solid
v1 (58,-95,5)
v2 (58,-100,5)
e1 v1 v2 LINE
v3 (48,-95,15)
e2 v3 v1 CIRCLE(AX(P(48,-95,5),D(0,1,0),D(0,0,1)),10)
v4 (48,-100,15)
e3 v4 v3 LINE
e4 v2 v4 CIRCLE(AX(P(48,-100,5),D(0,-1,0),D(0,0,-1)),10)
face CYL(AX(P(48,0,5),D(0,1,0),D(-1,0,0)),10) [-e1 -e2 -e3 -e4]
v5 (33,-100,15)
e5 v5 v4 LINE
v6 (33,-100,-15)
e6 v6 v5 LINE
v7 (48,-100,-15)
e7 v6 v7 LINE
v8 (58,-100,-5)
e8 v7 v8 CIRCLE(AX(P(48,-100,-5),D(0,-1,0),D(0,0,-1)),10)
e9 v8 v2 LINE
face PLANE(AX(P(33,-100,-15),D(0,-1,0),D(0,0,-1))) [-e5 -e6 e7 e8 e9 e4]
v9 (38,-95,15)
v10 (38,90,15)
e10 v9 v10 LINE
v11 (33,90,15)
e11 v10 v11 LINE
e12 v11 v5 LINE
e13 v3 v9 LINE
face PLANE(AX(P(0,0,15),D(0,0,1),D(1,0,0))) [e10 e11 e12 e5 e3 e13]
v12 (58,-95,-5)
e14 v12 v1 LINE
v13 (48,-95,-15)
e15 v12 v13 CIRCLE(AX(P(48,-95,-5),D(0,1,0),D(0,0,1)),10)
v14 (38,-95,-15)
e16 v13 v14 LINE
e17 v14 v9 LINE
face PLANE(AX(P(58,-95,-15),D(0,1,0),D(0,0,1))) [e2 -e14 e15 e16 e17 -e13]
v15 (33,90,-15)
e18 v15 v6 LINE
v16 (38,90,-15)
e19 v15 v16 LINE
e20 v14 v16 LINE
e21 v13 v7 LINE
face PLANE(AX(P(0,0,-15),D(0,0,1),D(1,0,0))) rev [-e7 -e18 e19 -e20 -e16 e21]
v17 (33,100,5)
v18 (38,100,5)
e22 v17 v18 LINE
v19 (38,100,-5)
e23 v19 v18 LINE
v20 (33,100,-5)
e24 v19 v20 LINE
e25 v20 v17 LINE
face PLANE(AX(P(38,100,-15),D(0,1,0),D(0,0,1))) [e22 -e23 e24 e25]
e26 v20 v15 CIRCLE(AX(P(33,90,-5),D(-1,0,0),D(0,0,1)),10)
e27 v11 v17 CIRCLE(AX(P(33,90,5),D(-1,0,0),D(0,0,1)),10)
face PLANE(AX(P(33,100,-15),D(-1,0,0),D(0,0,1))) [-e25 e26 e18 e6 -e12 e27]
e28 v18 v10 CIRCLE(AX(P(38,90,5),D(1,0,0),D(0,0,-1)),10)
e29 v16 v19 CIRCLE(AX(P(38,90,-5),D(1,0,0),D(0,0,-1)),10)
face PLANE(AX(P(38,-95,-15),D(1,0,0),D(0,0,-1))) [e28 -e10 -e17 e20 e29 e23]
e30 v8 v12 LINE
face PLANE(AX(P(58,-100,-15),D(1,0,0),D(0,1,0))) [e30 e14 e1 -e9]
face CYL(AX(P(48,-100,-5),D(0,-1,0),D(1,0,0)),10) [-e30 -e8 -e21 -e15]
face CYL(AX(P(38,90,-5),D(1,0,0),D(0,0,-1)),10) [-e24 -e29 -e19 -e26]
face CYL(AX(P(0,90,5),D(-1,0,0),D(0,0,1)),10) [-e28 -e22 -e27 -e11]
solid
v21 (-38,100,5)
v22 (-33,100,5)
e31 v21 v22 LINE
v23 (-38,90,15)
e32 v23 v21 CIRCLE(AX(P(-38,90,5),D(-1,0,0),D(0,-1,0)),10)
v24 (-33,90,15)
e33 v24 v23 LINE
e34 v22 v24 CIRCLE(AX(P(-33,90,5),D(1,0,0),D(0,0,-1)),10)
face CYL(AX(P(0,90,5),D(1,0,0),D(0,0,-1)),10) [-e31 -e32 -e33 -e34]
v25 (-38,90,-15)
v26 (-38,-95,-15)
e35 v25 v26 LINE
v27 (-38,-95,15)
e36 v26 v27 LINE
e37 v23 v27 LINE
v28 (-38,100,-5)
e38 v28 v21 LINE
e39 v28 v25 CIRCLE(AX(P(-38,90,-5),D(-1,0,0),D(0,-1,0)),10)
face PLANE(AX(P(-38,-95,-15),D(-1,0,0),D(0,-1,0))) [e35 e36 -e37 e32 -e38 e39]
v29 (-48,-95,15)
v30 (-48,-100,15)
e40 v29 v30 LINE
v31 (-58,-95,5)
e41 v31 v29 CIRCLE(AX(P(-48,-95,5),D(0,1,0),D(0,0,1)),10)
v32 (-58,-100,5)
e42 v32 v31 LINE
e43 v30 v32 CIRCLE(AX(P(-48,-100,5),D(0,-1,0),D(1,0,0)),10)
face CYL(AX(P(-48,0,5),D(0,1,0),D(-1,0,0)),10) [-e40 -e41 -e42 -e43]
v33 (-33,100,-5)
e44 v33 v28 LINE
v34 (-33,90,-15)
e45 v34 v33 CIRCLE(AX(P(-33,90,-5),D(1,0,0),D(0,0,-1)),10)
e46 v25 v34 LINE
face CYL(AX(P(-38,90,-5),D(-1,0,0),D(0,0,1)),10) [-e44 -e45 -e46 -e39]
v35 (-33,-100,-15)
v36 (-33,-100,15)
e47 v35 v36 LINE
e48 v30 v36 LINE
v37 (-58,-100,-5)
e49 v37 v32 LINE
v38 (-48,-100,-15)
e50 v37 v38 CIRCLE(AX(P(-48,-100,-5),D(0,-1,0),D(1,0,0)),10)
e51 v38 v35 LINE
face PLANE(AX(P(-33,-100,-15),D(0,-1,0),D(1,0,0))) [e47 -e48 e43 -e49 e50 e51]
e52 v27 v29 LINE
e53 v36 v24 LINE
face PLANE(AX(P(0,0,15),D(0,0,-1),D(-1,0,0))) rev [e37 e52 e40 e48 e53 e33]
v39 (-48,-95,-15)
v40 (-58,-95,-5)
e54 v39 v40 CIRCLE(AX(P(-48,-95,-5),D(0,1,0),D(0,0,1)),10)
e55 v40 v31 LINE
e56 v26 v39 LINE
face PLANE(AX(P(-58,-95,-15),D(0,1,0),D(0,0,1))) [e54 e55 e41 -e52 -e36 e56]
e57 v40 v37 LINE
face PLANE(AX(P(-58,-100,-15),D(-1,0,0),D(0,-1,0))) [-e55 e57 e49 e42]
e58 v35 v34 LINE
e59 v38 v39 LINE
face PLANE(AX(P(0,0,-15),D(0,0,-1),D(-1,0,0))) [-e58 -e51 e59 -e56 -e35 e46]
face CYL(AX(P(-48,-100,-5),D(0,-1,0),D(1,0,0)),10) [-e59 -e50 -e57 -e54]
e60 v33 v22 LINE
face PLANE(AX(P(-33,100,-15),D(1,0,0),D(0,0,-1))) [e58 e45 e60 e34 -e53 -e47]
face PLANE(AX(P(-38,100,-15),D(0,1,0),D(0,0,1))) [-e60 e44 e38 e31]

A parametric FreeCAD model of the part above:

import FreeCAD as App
import Part
import Sketcher

V = App.Vector


def edges_at(feature, points):
    """Names of the edges that pass closest to the given points."""
    edges = feature.Shape.Edges
    near = lambda p: min(range(len(edges)), key=lambda i: edges[i].distToShape(Part.Vertex(*p))[0])
    return sorted({f"Edge{near(p) + 1}" for p in points})


def add_polygon(sketch, points):
    """Adds a closed chain of lines whose ends are joined by coincident constraints."""
    first, n = sketch.GeometryCount, len(points)
    for a, b in zip(points, points[1:] + points[:1]):
        sketch.addGeometry(Part.LineSegment(App.Vector(*a, 0), App.Vector(*b, 0)), False)
    for i in range(n):
        sketch.addConstraint(Sketcher.Constraint("Coincident", first + i, 2, first + (i + 1) % n, 1))

doc = App.newDocument("Part")
params = doc.addObject("Spreadsheet::Sheet", "Params")
for row, (alias, value) in enumerate([
    ("sketch1_width", "25 mm"),
    ("sketch1_width2", "20 mm"),
    ("sketch1_height", "200 mm"),
    ("pad1_length", "15 mm"),
    ("pad1_length2", "15 mm"),
    ("fillet_radius", "10 mm"),
    ("sketch2_width", "5 mm"),
    ("sketch2_width2", "20 mm"),
    ("sketch2_height", "195 mm"),
    ("pad2_length", "15 mm"),
    ("pad2_length2", "15 mm"),
    ("fillet2_radius", "10 mm"),
], start=1):
    params.set(f"A{row}", alias)
    params.set(f"B{row}", "=" + value)
    params.setAlias(f"B{row}", alias)

body = doc.addObject("PartDesign::Body", "Body")

# Sketch on XY plane
sketch1 = body.newObject("Sketcher::SketchObject", "Sketch")
sketch1.AttachmentSupport = (doc.getObject("XY_Plane"), [""])
sketch1.MapMode = "FlatFace"
add_polygon(sketch1, [(33, 100), (33, -100), (58, -100), (58, -95), (38, -95), (38, 100)])  # lines 0-5
sketch1.addConstraint([
    Sketcher.Constraint("Vertical", 0),
    Sketcher.Constraint("Horizontal", 1),
    Sketcher.Constraint("Vertical", 2),
    Sketcher.Constraint("Horizontal", 3),
    Sketcher.Constraint("Vertical", 4),
    Sketcher.Constraint("Horizontal", 5),
    Sketcher.Constraint("Equal", 5, 2),
    Sketcher.Constraint("DistanceX", 1, 1, 1, 2, 25.0),
    Sketcher.Constraint("DistanceX", 3, 2, 3, 1, 20.0),
    Sketcher.Constraint("DistanceY", 0, 2, 0, 1, 200.0),
    Sketcher.Constraint("DistanceX", -1, 1, 0, 2, 33.0),
    Sketcher.Constraint("DistanceY", 0, 2, -1, 1, 100.0),
])
sketch1.setExpression("Constraints[13]", "Params.sketch1_width")
sketch1.setExpression("Constraints[14]", "Params.sketch1_width2")
sketch1.setExpression("Constraints[15]", "Params.sketch1_height")
pad1 = body.newObject("PartDesign::Pad", "Pad")
pad1.Profile = sketch1
pad1.Type = "TwoLengths"
pad1.setExpression("Length", "Params.pad1_length")
pad1.setExpression("Length2", "Params.pad1_length2")
doc.recompute()

fillet = body.newObject("PartDesign::Fillet", "Fillet")
fillet.Base = (pad1, edges_at(pad1, [
    (58, -97.5, -15),
    (35.5, 100, 15),
    (58, -97.5, 15),
    (35.5, 100, -15),
]))
fillet.setExpression("Radius", "Params.fillet_radius")
body2 = doc.addObject("PartDesign::Body", "Body001")

# Sketch on XY plane
sketch2 = body2.newObject("Sketcher::SketchObject", "Sketch001")
sketch2.AttachmentSupport = (doc.getObject("XY_Plane001"), [""])
sketch2.MapMode = "FlatFace"
add_polygon(sketch2, [(-33, 100), (-38, 100), (-38, -95), (-58, -95), (-58, -100), (-33, -100)])  # lines 0-5
sketch2.addConstraint([
    Sketcher.Constraint("Horizontal", 0),
    Sketcher.Constraint("Vertical", 1),
    Sketcher.Constraint("Horizontal", 2),
    Sketcher.Constraint("Vertical", 3),
    Sketcher.Constraint("Horizontal", 4),
    Sketcher.Constraint("Vertical", 5),
    Sketcher.Constraint("Equal", 0, 3),
    Sketcher.Constraint("DistanceX", 0, 2, 0, 1, 5.0),
    Sketcher.Constraint("DistanceX", 2, 2, 2, 1, 20.0),
    Sketcher.Constraint("DistanceY", 1, 2, 1, 1, 195.0),
    Sketcher.Constraint("DistanceX", 0, 2, -1, 1, 38.0),
    Sketcher.Constraint("DistanceY", -1, 1, 0, 2, 100.0),
])
sketch2.setExpression("Constraints[13]", "Params.sketch2_width")
sketch2.setExpression("Constraints[14]", "Params.sketch2_width2")
sketch2.setExpression("Constraints[15]", "Params.sketch2_height")
pad2 = body2.newObject("PartDesign::Pad", "Pad001")
pad2.Profile = sketch2
pad2.Type = "TwoLengths"
pad2.setExpression("Length", "Params.pad2_length")
pad2.setExpression("Length2", "Params.pad2_length2")
doc.recompute()

fillet2 = body2.newObject("PartDesign::Fillet", "Fillet001")
fillet2.Base = (pad2, edges_at(pad2, [
    (-58, -97.5, -15),
    (-58, -97.5, 15),
    (-35.5, 100, -15),
    (-35.5, 100, 15),
]))
fillet2.setExpression("Radius", "Params.fillet2_radius")

doc.recompute()
